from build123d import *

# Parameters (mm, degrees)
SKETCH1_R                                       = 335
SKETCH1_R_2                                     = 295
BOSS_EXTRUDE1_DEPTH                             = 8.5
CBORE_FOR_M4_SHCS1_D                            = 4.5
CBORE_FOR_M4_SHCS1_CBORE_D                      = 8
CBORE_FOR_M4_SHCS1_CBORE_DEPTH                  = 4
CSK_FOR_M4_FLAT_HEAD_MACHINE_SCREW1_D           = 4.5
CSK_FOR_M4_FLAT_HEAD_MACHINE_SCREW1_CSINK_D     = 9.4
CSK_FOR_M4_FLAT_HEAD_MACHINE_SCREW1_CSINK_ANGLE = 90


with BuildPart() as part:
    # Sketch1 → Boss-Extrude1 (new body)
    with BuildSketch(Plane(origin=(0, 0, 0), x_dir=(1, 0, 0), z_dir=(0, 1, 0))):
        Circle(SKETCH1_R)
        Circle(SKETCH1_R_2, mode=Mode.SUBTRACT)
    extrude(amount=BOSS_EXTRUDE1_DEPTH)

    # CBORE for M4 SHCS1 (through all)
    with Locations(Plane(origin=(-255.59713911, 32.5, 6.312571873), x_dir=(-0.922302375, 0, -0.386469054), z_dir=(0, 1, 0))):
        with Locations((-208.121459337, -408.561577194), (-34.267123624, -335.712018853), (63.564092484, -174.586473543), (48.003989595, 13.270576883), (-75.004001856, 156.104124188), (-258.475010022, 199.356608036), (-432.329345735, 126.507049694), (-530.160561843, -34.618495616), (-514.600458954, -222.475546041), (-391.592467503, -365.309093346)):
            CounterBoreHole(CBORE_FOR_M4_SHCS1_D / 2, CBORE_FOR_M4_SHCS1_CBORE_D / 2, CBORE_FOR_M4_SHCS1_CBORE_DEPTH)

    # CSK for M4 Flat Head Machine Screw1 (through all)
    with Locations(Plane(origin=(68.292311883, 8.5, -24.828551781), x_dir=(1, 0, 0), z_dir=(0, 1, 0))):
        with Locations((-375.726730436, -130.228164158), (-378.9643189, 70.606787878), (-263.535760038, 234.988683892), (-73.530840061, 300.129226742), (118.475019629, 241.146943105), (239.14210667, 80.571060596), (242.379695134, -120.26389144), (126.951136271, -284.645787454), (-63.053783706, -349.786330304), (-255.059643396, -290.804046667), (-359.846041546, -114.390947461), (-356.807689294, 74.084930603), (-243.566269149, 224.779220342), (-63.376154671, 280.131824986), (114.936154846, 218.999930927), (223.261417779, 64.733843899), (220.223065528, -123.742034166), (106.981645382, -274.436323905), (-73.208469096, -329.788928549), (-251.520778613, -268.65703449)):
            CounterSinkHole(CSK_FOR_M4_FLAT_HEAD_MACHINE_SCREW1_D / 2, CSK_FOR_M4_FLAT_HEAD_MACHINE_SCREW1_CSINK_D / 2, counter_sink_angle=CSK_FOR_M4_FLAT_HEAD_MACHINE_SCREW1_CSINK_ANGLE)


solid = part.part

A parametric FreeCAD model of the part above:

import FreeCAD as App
import Part
import Sketcher

doc = App.newDocument("Part")
body = doc.addObject("PartDesign::Body", "Body")

# Sketch on XZ plane
sketch1 = body.newObject("Sketcher::SketchObject", "Sketch")
sketch1.AttachmentSupport = (doc.getObject("XZ_Plane"), [""])
sketch1.MapMode = "FlatFace"
sketch1.addGeometry(Part.Circle(App.Vector(0, 0, 0), App.Vector(0, 0, 1), 335), False)
sketch1.addGeometry(Part.Circle(App.Vector(0, 0, 0), App.Vector(0, 0, 1), 295), False)
sketch1.addConstraint(Sketcher.Constraint("Coincident", 0, 3, -1, 1))
sketch1.addConstraint(Sketcher.Constraint("Coincident", 1, 3, -1, 1))
sketch1.addConstraint(Sketcher.Constraint("Diameter", 0, 670.0))
sketch1.addConstraint(Sketcher.Constraint("Diameter", 1, 590.0))
pad1 = body.newObject("PartDesign::Pad", "Pad")
pad1.Profile = sketch1
pad1.Length = 8.5
pad1.Reversed = True

# Sketch on XZ plane
sketch2 = body.newObject("Sketcher::SketchObject", "Sketch001")
sketch2.AttachmentSupport = (doc.getObject("XZ_Plane"), [""])
sketch2.MapMode = "FlatFace"
sketch2.AttachmentOffset = App.Placement(App.Vector(0, 0, -32.5), App.Rotation())
sketch2.addGeometry(Part.Circle(App.Vector(94.3, -290.1, 0), App.Vector(0, 0, 1), 2.2), False)
sketch2.addGeometry(Part.Circle(App.Vector(-94.3, -290.1, 0), App.Vector(0, 0, 1), 2.2), False)
sketch2.addGeometry(Part.Circle(App.Vector(-246.8, -179.3, 0), App.Vector(0, 0, 1), 2.2), False)
sketch2.addGeometry(Part.Circle(App.Vector(-305, 0, 0), App.Vector(0, 0, 1), 2.2), False)
sketch2.addGeometry(Part.Circle(App.Vector(-246.8, 179.3, 0), App.Vector(0, 0, 1), 2.2), False)
sketch2.addGeometry(Part.Circle(App.Vector(-94.3, 290.1, 0), App.Vector(0, 0, 1), 2.2), False)
sketch2.addGeometry(Part.Circle(App.Vector(94.3, 290.1, 0), App.Vector(0, 0, 1), 2.2), False)
sketch2.addGeometry(Part.Circle(App.Vector(246.8, 179.3, 0), App.Vector(0, 0, 1), 2.2), False)
sketch2.addGeometry(Part.Circle(App.Vector(305, 0, 0), App.Vector(0, 0, 1), 2.2), False)
sketch2.addGeometry(Part.Circle(App.Vector(246.8, -179.3, 0), App.Vector(0, 0, 1), 2.2), False)
sketch2.addConstraint(Sketcher.Constraint("Equal", 0, 1))
sketch2.addConstraint(Sketcher.Constraint("Equal", 1, 2))
sketch2.addConstraint(Sketcher.Constraint("Equal", 2, 3))
sketch2.addConstraint(Sketcher.Constraint("Equal", 3, 4))
sketch2.addConstraint(Sketcher.Constraint("Equal", 4, 5))
sketch2.addConstraint(Sketcher.Constraint("Equal", 5, 6))
sketch2.addConstraint(Sketcher.Constraint("Equal", 6, 7))
sketch2.addConstraint(Sketcher.Constraint("Equal", 7, 8))
sketch2.addConstraint(Sketcher.Constraint("Equal", 8, 9))
sketch2.addConstraint(Sketcher.Constraint("Symmetric", 0, 3, 5, 3, -1, 1))
sketch2.addConstraint(Sketcher.Constraint("Symmetric", 1, 3, 6, 3, -1, 1))
sketch2.addConstraint(Sketcher.Constraint("Symmetric", 2, 3, 7, 3, -1, 1))
sketch2.addConstraint(Sketcher.Constraint("Symmetric", 3, 3, 8, 3, -1, 1))
sketch2.addConstraint(Sketcher.Constraint("Symmetric", 4, 3, 9, 3, -1, 1))
sketch2.addConstraint(Sketcher.Constraint("Symmetric", 0, 3, 1, 3, -2))
sketch2.addConstraint(Sketcher.Constraint("Symmetric", 4, 3, 7, 3, -2))
sketch2.addConstraint(Sketcher.Constraint("PointOnObject", 3, 3, -1))
sketch2.addConstraint(Sketcher.Constraint("Diameter", 0, 4.5))
sketch2.addConstraint(Sketcher.Constraint("DistanceX", 3, 3, -1, 1, 305.0))
sketch2.addConstraint(Sketcher.Constraint("DistanceX", 2, 3, 1, 3, 152.5))
sketch2.addConstraint(Sketcher.Constraint("DistanceY", -1, 1, 7, 3, 179.274502))
sketch2.addConstraint(Sketcher.Constraint("DistanceY", 1, 3, 4, 3, 469.34674))
sketch2.addConstraint(Sketcher.Constraint("DistanceX", -1, 1, 0, 3, 94.250183))
doc.recompute()
hole = body.newObject("PartDesign::Hole", "Hole")
hole.Profile = sketch2
hole.ThreadType = "None"
hole.Diameter = 4.5
hole.DepthType = "ThroughAll"
hole.HoleCutType = "Counterbore"
hole.HoleCutDiameter = 8
hole.HoleCutDepth = 4
hole.Reversed = True

# Sketch on XZ plane
sketch3 = body.newObject("Sketcher::SketchObject", "Sketch002")
sketch3.AttachmentSupport = (doc.getObject("XZ_Plane"), [""])
sketch3.MapMode = "FlatFace"
sketch3.AttachmentOffset = App.Placement(App.Vector(0, 0, -8.5), App.Rotation())
sketch3.addGeometry(Part.Circle(App.Vector(-307.4, 105.4, 0), App.Vector(0, 0, 1), 2.2), False)
sketch3.addGeometry(Part.Circle(App.Vector(-310.7, -95.4, 0), App.Vector(0, 0, 1), 2.2), False)
sketch3.addGeometry(Part.Circle(App.Vector(-195.2, -259.8, 0), App.Vector(0, 0, 1), 2.2), False)
sketch3.addGeometry(Part.Circle(App.Vector(-5.2, -325, 0), App.Vector(0, 0, 1), 2.2), False)
sketch3.addGeometry(Part.Circle(App.Vector(186.8, -266, 0), App.Vector(0, 0, 1), 2.2), False)
sketch3.addGeometry(Part.Circle(App.Vector(307.4, -105.4, 0), App.Vector(0, 0, 1), 2.2), False)
sketch3.addGeometry(Part.Circle(App.Vector(310.7, 95.4, 0), App.Vector(0, 0, 1), 2.2), False)
sketch3.addGeometry(Part.Circle(App.Vector(195.2, 259.8, 0), App.Vector(0, 0, 1), 2.2), False)
sketch3.addGeometry(Part.Circle(App.Vector(5.2, 325, 0), App.Vector(0, 0, 1), 2.2), False)
sketch3.addGeometry(Part.Circle(App.Vector(-186.8, 266, 0), App.Vector(0, 0, 1), 2.2), False)
sketch3.addGeometry(Part.Circle(App.Vector(-291.6, 89.6, 0), App.Vector(0, 0, 1), 2.2), False)
sketch3.addGeometry(Part.Circle(App.Vector(-288.5, -98.9, 0), App.Vector(0, 0, 1), 2.2), False)
sketch3.addGeometry(Part.Circle(App.Vector(-175.3, -249.6, 0), App.Vector(0, 0, 1), 2.2), False)
sketch3.addGeometry(Part.Circle(App.Vector(4.9, -305, 0), App.Vector(0, 0, 1), 2.2), False)
sketch3.addGeometry(Part.Circle(App.Vector(183.2, -243.8, 0), App.Vector(0, 0, 1), 2.2), False)
sketch3.addGeometry(Part.Circle(App.Vector(291.6, -89.6, 0), App.Vector(0, 0, 1), 2.2), False)
sketch3.addGeometry(Part.Circle(App.Vector(288.5, 98.9, 0), App.Vector(0, 0, 1), 2.2), False)
sketch3.addGeometry(Part.Circle(App.Vector(175.3, 249.6, 0), App.Vector(0, 0, 1), 2.2), False)
sketch3.addGeometry(Part.Circle(App.Vector(-4.9, 305, 0), App.Vector(0, 0, 1), 2.2), False)
sketch3.addGeometry(Part.Circle(App.Vector(-183.2, 243.8, 0), App.Vector(0, 0, 1), 2.2), False)
sketch3.addConstraint(Sketcher.Constraint("Equal", 0, 1))
sketch3.addConstraint(Sketcher.Constraint("Equal", 1, 2))
sketch3.addConstraint(Sketcher.Constraint("Equal", 2, 3))
sketch3.addConstraint(Sketcher.Constraint("Equal", 3, 4))
sketch3.addConstraint(Sketcher.Constraint("Equal", 4, 5))
sketch3.addConstraint(Sketcher.Constraint("Equal", 5, 6))
sketch3.addConstraint(Sketcher.Constraint("Equal", 6, 7))
sketch3.addConstraint(Sketcher.Constraint("Equal", 7, 8))
sketch3.addConstraint(Sketcher.Constraint("Equal", 8, 9))
sketch3.addConstraint(Sketcher.Constraint("Equal", 9, 10))
sketch3.addConstraint(Sketcher.Constraint("Equal", 10, 11))
sketch3.addConstraint(Sketcher.Constraint("Equal", 11, 12))
sketch3.addConstraint(Sketcher.Constraint("Equal", 12, 13))
sketch3.addConstraint(Sketcher.Constraint("Equal", 13, 14))
sketch3.addConstraint(Sketcher.Constraint("Equal", 14, 15))
sketch3.addConstraint(Sketcher.Constraint("Equal", 15, 16))
sketch3.addConstraint(Sketcher.Constraint("Equal", 16, 17))
sketch3.addConstraint(Sketcher.Constraint("Equal", 17, 18))
sketch3.addConstraint(Sketcher.Constraint("Equal", 18, 19))
sketch3.addConstraint(Sketcher.Constraint("Symmetric", 0, 3, 5, 3, -1, 1))
sketch3.addConstraint(Sketcher.Constraint("Symmetric", 1, 3, 6, 3, -1, 1))
sketch3.addConstraint(Sketcher.Constraint("Symmetric", 2, 3, 7, 3, -1, 1))
sketch3.addConstraint(Sketcher.Constraint("Symmetric", 3, 3, 8, 3, -1, 1))
sketch3.addConstraint(Sketcher.Constraint("Symmetric", 4, 3, 9, 3, -1, 1))
sketch3.addConstraint(Sketcher.Constraint("Symmetric", 10, 3, 15, 3, -1, 1))
sketch3.addConstraint(Sketcher.Constraint("Symmetric", 11, 3, 16, 3, -1, 1))
sketch3.addConstraint(Sketcher.Constraint("Symmetric", 12, 3, 17, 3, -1, 1))
sketch3.addConstraint(Sketcher.Constraint("Symmetric", 13, 3, 18, 3, -1, 1))
sketch3.addConstraint(Sketcher.Constraint("Symmetric", 14, 3, 19, 3, -1, 1))
sketch3.addConstraint(Sketcher.Constraint("Diameter", 0, 4.5))
sketch3.addConstraint(Sketcher.Constraint("DistanceX", 10, 3, 9, 3, 104.786398))
sketch3.addConstraint(Sketcher.Constraint("DistanceY", 10, 3, 9, 3, 176.413099))
sketch3.addConstraint(Sketcher.Constraint("DistanceY", 3, 3, 13, 3, 19.997402))
sketch3.addConstraint(Sketcher.Constraint("DistanceX", 0, 3, -1, 1, 307.434419))
sketch3.addConstraint(Sketcher.Constraint("DistanceY", 1, 3, -1, 1, 95.43534))
sketch3.addConstraint(Sketcher.Constraint("DistanceX", 2, 3, -1, 1, 195.243448))
sketch3.addConstraint(Sketcher.Constraint("DistanceX", 3, 3, -1, 1, 5.238528))
sketch3.addConstraint(Sketcher.Constraint("DistanceY", 3, 3, -1, 1, 324.957779))
sketch3.addConstraint(Sketcher.Constraint("DistanceX", -1, 1, 4, 3, 186.767332))
sketch3.addConstraint(Sketcher.Constraint("DistanceX", 1, 3, 0, 3, 3.237588))
sketch3.addConstraint(Sketcher.Constraint("DistanceY", 2, 3, 0, 3, 365.216848))
sketch3.addConstraint(Sketcher.Constraint("DistanceY", 3, 3, 0, 3, 430.357391))
sketch3.addConstraint(Sketcher.Constraint("DistanceY", 4, 3, 2, 3, 6.158259))
sketch3.addConstraint(Sketcher.Constraint("DistanceX", 1, 3, 11, 3, 22.15663))
sketch3.addConstraint(Sketcher.Constraint("DistanceY", 11, 3, 10, 3, 188.475878))
sketch3.addConstraint(Sketcher.Constraint("DistanceX", 2, 3, 12, 3, 19.969491))
sketch3.addConstraint(Sketcher.Constraint("DistanceY", 12, 3, 11, 3, 150.69429))
sketch3.addConstraint(Sketcher.Constraint("DistanceX", 14, 3, 5, 3, 124.205952))
sketch3.addConstraint(Sketcher.Constraint("DistanceY", 14, 3, 5, 3, 138.42887))
sketch3.addConstraint(Sketcher.Constraint("DistanceX", 13, 3, 14, 3, 178.31231))
doc.recompute()
hole2 = body.newObject("PartDesign::Hole", "Hole001")
hole2.Profile = sketch3
hole2.ThreadType = "None"
hole2.Diameter = 4.5
hole2.DepthType = "ThroughAll"
hole2.HoleCutType = "Countersink"
hole2.HoleCutDiameter = 9.4
hole2.HoleCutCountersinkAngle = 90
hole2.Reversed = True

doc.recompute()
